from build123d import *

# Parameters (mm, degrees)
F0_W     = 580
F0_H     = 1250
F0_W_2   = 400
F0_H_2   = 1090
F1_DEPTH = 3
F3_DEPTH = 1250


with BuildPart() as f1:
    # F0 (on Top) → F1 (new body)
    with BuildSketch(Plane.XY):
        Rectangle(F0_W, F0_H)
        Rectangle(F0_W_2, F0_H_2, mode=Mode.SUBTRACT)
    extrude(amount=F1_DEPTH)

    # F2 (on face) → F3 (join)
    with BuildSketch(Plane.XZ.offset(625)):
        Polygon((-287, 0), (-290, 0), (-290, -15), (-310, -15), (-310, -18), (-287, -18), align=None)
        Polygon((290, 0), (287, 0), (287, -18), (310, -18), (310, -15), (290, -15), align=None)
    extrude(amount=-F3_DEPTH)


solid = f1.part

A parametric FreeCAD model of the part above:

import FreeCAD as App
import Part
import Sketcher

doc = App.newDocument("Part")
body = doc.addObject("PartDesign::Body", "Body")

sketch1 = body.newObject("Sketcher::SketchObject", "Sketch")
sketch1.AttachmentSupport = (doc.getObject("XY_Plane"), [""])
sketch1.MapMode = "FlatFace"
sketch1.addGeometry([
    Part.LineSegment(App.Vector(-290, 625, 0), App.Vector(-290, -625, 0)),
    Part.LineSegment(App.Vector(-290, -625, 0), App.Vector(290, -625, 0)),
    Part.LineSegment(App.Vector(290, -625, 0), App.Vector(290, 625, 0)),
    Part.LineSegment(App.Vector(290, 625, 0), App.Vector(-290, 625, 0)),
    Part.LineSegment(App.Vector(200, -545, 0), App.Vector(-200, -545, 0)),
    Part.LineSegment(App.Vector(-200, -545, 0), App.Vector(-200, 545, 0)),
    Part.LineSegment(App.Vector(-200, 545, 0), App.Vector(200, 545, 0)),
    Part.LineSegment(App.Vector(200, 545, 0), App.Vector(200, -545, 0)),
], False)
sketch1.addConstraint([
    Sketcher.Constraint("Coincident", 0, 2, 1, 1),
    Sketcher.Constraint("Coincident", 1, 2, 2, 1),
    Sketcher.Constraint("Coincident", 2, 2, 3, 1),
    Sketcher.Constraint("Coincident", 3, 2, 0, 1),
    Sketcher.Constraint("Coincident", 4, 2, 5, 1),
    Sketcher.Constraint("Coincident", 5, 2, 6, 1),
    Sketcher.Constraint("Coincident", 6, 2, 7, 1),
    Sketcher.Constraint("Coincident", 7, 2, 4, 1),
    Sketcher.Constraint("Vertical", 0),
    Sketcher.Constraint("Horizontal", 1),
    Sketcher.Constraint("Vertical", 2),
    Sketcher.Constraint("Horizontal", 3),
    Sketcher.Constraint("Horizontal", 4),
    Sketcher.Constraint("Vertical", 5),
    Sketcher.Constraint("Horizontal", 6),
    Sketcher.Constraint("Vertical", 7),
    Sketcher.Constraint("Symmetric", 0, 2, 2, 2, -1, 1),
    Sketcher.Constraint("Symmetric", 4, 2, 6, 2, -1, 1),
    Sketcher.Constraint("DistanceX", 1, 1, 1, 2, 580.0),
    Sketcher.Constraint("DistanceX", 4, 2, 4, 1, 400.0),
    Sketcher.Constraint("DistanceY", 0, 2, 0, 1, 1250.0),
    Sketcher.Constraint("DistanceY", 5, 1, 5, 2, 1090.0),
])
pad1 = body.newObject("PartDesign::Pad", "Pad")
pad1.Profile = sketch1
pad1.Length = 3

sketch2 = body.newObject("Sketcher::SketchObject", "Sketch001")
sketch2.AttachmentSupport = (doc.getObject("XZ_Plane"), [""])
sketch2.MapMode = "FlatFace"
sketch2.AttachmentOffset = App.Placement(App.Vector(0, 0, 625), App.Rotation())
sketch2.addGeometry([
    Part.LineSegment(App.Vector(-287, 0, 0), App.Vector(-290, 0, 0)),
    Part.LineSegment(App.Vector(-290, 0, 0), App.Vector(-290, -15, 0)),
    Part.LineSegment(App.Vector(-290, -15, 0), App.Vector(-310, -15, 0)),
    Part.LineSegment(App.Vector(-310, -15, 0), App.Vector(-310, -18, 0)),
    Part.LineSegment(App.Vector(-310, -18, 0), App.Vector(-287, -18, 0)),
    Part.LineSegment(App.Vector(-287, -18, 0), App.Vector(-287, 0, 0)),
    Part.LineSegment(App.Vector(290, 0, 0), App.Vector(287, 0, 0)),
    Part.LineSegment(App.Vector(287, 0, 0), App.Vector(287, -18, 0)),
    Part.LineSegment(App.Vector(287, -18, 0), App.Vector(310, -18, 0)),
    Part.LineSegment(App.Vector(310, -18, 0), App.Vector(310, -15, 0)),
    Part.LineSegment(App.Vector(310, -15, 0), App.Vector(290, -15, 0)),
    Part.LineSegment(App.Vector(290, -15, 0), App.Vector(290, 0, 0)),
], False)
sketch2.addConstraint([
    Sketcher.Constraint("Coincident", 0, 2, 1, 1),
    Sketcher.Constraint("Coincident", 1, 2, 2, 1),
    Sketcher.Constraint("Coincident", 2, 2, 3, 1),
    Sketcher.Constraint("Coincident", 3, 2, 4, 1),
    Sketcher.Constraint("Coincident", 4, 2, 5, 1),
    Sketcher.Constraint("Coincident", 5, 2, 0, 1),
    Sketcher.Constraint("Coincident", 6, 2, 7, 1),
    Sketcher.Constraint("Coincident", 7, 2, 8, 1),
    Sketcher.Constraint("Coincident", 8, 2, 9, 1),
    Sketcher.Constraint("Coincident", 9, 2, 10, 1),
    Sketcher.Constraint("Coincident", 10, 2, 11, 1),
    Sketcher.Constraint("Coincident", 11, 2, 6, 1),
    Sketcher.Constraint("Horizontal", 0),
    Sketcher.Constraint("Vertical", 1),
    Sketcher.Constraint("Horizontal", 2),
    Sketcher.Constraint("Vertical", 3),
    Sketcher.Constraint("Horizontal", 4),
    Sketcher.Constraint("Vertical", 5),
    Sketcher.Constraint("Horizontal", 6),
    Sketcher.Constraint("Vertical", 7),
    Sketcher.Constraint("Horizontal", 8),
    Sketcher.Constraint("Vertical", 9),
    Sketcher.Constraint("Horizontal", 10),
    Sketcher.Constraint("Vertical", 11),
    Sketcher.Constraint("Symmetric", 5, 2, 6, 2, -1, 1),
    Sketcher.Constraint("Symmetric", 3, 2, 8, 2, -2),
    Sketcher.Constraint("Symmetric", 1, 2, 10, 2, -2),
    Sketcher.Constraint("PointOnObject", 0, 2, -1),
    Sketcher.Constraint("Equal", 6, 3),
    Sketcher.Constraint("DistanceX", 0, 2, 0, 1, 3.0),
    Sketcher.Constraint("DistanceX", 2, 2, 2, 1, 20.0),
    Sketcher.Constraint("DistanceY", 1, 2, 1, 1, 15.0),
    Sketcher.Constraint("DistanceX", 0, 2, -1, 1, 290.0),
])
pad2 = body.newObject("PartDesign::Pad", "Pad001")
pad2.Profile = sketch2
pad2.Length = 1250
pad2.Reversed = True

doc.recompute()
